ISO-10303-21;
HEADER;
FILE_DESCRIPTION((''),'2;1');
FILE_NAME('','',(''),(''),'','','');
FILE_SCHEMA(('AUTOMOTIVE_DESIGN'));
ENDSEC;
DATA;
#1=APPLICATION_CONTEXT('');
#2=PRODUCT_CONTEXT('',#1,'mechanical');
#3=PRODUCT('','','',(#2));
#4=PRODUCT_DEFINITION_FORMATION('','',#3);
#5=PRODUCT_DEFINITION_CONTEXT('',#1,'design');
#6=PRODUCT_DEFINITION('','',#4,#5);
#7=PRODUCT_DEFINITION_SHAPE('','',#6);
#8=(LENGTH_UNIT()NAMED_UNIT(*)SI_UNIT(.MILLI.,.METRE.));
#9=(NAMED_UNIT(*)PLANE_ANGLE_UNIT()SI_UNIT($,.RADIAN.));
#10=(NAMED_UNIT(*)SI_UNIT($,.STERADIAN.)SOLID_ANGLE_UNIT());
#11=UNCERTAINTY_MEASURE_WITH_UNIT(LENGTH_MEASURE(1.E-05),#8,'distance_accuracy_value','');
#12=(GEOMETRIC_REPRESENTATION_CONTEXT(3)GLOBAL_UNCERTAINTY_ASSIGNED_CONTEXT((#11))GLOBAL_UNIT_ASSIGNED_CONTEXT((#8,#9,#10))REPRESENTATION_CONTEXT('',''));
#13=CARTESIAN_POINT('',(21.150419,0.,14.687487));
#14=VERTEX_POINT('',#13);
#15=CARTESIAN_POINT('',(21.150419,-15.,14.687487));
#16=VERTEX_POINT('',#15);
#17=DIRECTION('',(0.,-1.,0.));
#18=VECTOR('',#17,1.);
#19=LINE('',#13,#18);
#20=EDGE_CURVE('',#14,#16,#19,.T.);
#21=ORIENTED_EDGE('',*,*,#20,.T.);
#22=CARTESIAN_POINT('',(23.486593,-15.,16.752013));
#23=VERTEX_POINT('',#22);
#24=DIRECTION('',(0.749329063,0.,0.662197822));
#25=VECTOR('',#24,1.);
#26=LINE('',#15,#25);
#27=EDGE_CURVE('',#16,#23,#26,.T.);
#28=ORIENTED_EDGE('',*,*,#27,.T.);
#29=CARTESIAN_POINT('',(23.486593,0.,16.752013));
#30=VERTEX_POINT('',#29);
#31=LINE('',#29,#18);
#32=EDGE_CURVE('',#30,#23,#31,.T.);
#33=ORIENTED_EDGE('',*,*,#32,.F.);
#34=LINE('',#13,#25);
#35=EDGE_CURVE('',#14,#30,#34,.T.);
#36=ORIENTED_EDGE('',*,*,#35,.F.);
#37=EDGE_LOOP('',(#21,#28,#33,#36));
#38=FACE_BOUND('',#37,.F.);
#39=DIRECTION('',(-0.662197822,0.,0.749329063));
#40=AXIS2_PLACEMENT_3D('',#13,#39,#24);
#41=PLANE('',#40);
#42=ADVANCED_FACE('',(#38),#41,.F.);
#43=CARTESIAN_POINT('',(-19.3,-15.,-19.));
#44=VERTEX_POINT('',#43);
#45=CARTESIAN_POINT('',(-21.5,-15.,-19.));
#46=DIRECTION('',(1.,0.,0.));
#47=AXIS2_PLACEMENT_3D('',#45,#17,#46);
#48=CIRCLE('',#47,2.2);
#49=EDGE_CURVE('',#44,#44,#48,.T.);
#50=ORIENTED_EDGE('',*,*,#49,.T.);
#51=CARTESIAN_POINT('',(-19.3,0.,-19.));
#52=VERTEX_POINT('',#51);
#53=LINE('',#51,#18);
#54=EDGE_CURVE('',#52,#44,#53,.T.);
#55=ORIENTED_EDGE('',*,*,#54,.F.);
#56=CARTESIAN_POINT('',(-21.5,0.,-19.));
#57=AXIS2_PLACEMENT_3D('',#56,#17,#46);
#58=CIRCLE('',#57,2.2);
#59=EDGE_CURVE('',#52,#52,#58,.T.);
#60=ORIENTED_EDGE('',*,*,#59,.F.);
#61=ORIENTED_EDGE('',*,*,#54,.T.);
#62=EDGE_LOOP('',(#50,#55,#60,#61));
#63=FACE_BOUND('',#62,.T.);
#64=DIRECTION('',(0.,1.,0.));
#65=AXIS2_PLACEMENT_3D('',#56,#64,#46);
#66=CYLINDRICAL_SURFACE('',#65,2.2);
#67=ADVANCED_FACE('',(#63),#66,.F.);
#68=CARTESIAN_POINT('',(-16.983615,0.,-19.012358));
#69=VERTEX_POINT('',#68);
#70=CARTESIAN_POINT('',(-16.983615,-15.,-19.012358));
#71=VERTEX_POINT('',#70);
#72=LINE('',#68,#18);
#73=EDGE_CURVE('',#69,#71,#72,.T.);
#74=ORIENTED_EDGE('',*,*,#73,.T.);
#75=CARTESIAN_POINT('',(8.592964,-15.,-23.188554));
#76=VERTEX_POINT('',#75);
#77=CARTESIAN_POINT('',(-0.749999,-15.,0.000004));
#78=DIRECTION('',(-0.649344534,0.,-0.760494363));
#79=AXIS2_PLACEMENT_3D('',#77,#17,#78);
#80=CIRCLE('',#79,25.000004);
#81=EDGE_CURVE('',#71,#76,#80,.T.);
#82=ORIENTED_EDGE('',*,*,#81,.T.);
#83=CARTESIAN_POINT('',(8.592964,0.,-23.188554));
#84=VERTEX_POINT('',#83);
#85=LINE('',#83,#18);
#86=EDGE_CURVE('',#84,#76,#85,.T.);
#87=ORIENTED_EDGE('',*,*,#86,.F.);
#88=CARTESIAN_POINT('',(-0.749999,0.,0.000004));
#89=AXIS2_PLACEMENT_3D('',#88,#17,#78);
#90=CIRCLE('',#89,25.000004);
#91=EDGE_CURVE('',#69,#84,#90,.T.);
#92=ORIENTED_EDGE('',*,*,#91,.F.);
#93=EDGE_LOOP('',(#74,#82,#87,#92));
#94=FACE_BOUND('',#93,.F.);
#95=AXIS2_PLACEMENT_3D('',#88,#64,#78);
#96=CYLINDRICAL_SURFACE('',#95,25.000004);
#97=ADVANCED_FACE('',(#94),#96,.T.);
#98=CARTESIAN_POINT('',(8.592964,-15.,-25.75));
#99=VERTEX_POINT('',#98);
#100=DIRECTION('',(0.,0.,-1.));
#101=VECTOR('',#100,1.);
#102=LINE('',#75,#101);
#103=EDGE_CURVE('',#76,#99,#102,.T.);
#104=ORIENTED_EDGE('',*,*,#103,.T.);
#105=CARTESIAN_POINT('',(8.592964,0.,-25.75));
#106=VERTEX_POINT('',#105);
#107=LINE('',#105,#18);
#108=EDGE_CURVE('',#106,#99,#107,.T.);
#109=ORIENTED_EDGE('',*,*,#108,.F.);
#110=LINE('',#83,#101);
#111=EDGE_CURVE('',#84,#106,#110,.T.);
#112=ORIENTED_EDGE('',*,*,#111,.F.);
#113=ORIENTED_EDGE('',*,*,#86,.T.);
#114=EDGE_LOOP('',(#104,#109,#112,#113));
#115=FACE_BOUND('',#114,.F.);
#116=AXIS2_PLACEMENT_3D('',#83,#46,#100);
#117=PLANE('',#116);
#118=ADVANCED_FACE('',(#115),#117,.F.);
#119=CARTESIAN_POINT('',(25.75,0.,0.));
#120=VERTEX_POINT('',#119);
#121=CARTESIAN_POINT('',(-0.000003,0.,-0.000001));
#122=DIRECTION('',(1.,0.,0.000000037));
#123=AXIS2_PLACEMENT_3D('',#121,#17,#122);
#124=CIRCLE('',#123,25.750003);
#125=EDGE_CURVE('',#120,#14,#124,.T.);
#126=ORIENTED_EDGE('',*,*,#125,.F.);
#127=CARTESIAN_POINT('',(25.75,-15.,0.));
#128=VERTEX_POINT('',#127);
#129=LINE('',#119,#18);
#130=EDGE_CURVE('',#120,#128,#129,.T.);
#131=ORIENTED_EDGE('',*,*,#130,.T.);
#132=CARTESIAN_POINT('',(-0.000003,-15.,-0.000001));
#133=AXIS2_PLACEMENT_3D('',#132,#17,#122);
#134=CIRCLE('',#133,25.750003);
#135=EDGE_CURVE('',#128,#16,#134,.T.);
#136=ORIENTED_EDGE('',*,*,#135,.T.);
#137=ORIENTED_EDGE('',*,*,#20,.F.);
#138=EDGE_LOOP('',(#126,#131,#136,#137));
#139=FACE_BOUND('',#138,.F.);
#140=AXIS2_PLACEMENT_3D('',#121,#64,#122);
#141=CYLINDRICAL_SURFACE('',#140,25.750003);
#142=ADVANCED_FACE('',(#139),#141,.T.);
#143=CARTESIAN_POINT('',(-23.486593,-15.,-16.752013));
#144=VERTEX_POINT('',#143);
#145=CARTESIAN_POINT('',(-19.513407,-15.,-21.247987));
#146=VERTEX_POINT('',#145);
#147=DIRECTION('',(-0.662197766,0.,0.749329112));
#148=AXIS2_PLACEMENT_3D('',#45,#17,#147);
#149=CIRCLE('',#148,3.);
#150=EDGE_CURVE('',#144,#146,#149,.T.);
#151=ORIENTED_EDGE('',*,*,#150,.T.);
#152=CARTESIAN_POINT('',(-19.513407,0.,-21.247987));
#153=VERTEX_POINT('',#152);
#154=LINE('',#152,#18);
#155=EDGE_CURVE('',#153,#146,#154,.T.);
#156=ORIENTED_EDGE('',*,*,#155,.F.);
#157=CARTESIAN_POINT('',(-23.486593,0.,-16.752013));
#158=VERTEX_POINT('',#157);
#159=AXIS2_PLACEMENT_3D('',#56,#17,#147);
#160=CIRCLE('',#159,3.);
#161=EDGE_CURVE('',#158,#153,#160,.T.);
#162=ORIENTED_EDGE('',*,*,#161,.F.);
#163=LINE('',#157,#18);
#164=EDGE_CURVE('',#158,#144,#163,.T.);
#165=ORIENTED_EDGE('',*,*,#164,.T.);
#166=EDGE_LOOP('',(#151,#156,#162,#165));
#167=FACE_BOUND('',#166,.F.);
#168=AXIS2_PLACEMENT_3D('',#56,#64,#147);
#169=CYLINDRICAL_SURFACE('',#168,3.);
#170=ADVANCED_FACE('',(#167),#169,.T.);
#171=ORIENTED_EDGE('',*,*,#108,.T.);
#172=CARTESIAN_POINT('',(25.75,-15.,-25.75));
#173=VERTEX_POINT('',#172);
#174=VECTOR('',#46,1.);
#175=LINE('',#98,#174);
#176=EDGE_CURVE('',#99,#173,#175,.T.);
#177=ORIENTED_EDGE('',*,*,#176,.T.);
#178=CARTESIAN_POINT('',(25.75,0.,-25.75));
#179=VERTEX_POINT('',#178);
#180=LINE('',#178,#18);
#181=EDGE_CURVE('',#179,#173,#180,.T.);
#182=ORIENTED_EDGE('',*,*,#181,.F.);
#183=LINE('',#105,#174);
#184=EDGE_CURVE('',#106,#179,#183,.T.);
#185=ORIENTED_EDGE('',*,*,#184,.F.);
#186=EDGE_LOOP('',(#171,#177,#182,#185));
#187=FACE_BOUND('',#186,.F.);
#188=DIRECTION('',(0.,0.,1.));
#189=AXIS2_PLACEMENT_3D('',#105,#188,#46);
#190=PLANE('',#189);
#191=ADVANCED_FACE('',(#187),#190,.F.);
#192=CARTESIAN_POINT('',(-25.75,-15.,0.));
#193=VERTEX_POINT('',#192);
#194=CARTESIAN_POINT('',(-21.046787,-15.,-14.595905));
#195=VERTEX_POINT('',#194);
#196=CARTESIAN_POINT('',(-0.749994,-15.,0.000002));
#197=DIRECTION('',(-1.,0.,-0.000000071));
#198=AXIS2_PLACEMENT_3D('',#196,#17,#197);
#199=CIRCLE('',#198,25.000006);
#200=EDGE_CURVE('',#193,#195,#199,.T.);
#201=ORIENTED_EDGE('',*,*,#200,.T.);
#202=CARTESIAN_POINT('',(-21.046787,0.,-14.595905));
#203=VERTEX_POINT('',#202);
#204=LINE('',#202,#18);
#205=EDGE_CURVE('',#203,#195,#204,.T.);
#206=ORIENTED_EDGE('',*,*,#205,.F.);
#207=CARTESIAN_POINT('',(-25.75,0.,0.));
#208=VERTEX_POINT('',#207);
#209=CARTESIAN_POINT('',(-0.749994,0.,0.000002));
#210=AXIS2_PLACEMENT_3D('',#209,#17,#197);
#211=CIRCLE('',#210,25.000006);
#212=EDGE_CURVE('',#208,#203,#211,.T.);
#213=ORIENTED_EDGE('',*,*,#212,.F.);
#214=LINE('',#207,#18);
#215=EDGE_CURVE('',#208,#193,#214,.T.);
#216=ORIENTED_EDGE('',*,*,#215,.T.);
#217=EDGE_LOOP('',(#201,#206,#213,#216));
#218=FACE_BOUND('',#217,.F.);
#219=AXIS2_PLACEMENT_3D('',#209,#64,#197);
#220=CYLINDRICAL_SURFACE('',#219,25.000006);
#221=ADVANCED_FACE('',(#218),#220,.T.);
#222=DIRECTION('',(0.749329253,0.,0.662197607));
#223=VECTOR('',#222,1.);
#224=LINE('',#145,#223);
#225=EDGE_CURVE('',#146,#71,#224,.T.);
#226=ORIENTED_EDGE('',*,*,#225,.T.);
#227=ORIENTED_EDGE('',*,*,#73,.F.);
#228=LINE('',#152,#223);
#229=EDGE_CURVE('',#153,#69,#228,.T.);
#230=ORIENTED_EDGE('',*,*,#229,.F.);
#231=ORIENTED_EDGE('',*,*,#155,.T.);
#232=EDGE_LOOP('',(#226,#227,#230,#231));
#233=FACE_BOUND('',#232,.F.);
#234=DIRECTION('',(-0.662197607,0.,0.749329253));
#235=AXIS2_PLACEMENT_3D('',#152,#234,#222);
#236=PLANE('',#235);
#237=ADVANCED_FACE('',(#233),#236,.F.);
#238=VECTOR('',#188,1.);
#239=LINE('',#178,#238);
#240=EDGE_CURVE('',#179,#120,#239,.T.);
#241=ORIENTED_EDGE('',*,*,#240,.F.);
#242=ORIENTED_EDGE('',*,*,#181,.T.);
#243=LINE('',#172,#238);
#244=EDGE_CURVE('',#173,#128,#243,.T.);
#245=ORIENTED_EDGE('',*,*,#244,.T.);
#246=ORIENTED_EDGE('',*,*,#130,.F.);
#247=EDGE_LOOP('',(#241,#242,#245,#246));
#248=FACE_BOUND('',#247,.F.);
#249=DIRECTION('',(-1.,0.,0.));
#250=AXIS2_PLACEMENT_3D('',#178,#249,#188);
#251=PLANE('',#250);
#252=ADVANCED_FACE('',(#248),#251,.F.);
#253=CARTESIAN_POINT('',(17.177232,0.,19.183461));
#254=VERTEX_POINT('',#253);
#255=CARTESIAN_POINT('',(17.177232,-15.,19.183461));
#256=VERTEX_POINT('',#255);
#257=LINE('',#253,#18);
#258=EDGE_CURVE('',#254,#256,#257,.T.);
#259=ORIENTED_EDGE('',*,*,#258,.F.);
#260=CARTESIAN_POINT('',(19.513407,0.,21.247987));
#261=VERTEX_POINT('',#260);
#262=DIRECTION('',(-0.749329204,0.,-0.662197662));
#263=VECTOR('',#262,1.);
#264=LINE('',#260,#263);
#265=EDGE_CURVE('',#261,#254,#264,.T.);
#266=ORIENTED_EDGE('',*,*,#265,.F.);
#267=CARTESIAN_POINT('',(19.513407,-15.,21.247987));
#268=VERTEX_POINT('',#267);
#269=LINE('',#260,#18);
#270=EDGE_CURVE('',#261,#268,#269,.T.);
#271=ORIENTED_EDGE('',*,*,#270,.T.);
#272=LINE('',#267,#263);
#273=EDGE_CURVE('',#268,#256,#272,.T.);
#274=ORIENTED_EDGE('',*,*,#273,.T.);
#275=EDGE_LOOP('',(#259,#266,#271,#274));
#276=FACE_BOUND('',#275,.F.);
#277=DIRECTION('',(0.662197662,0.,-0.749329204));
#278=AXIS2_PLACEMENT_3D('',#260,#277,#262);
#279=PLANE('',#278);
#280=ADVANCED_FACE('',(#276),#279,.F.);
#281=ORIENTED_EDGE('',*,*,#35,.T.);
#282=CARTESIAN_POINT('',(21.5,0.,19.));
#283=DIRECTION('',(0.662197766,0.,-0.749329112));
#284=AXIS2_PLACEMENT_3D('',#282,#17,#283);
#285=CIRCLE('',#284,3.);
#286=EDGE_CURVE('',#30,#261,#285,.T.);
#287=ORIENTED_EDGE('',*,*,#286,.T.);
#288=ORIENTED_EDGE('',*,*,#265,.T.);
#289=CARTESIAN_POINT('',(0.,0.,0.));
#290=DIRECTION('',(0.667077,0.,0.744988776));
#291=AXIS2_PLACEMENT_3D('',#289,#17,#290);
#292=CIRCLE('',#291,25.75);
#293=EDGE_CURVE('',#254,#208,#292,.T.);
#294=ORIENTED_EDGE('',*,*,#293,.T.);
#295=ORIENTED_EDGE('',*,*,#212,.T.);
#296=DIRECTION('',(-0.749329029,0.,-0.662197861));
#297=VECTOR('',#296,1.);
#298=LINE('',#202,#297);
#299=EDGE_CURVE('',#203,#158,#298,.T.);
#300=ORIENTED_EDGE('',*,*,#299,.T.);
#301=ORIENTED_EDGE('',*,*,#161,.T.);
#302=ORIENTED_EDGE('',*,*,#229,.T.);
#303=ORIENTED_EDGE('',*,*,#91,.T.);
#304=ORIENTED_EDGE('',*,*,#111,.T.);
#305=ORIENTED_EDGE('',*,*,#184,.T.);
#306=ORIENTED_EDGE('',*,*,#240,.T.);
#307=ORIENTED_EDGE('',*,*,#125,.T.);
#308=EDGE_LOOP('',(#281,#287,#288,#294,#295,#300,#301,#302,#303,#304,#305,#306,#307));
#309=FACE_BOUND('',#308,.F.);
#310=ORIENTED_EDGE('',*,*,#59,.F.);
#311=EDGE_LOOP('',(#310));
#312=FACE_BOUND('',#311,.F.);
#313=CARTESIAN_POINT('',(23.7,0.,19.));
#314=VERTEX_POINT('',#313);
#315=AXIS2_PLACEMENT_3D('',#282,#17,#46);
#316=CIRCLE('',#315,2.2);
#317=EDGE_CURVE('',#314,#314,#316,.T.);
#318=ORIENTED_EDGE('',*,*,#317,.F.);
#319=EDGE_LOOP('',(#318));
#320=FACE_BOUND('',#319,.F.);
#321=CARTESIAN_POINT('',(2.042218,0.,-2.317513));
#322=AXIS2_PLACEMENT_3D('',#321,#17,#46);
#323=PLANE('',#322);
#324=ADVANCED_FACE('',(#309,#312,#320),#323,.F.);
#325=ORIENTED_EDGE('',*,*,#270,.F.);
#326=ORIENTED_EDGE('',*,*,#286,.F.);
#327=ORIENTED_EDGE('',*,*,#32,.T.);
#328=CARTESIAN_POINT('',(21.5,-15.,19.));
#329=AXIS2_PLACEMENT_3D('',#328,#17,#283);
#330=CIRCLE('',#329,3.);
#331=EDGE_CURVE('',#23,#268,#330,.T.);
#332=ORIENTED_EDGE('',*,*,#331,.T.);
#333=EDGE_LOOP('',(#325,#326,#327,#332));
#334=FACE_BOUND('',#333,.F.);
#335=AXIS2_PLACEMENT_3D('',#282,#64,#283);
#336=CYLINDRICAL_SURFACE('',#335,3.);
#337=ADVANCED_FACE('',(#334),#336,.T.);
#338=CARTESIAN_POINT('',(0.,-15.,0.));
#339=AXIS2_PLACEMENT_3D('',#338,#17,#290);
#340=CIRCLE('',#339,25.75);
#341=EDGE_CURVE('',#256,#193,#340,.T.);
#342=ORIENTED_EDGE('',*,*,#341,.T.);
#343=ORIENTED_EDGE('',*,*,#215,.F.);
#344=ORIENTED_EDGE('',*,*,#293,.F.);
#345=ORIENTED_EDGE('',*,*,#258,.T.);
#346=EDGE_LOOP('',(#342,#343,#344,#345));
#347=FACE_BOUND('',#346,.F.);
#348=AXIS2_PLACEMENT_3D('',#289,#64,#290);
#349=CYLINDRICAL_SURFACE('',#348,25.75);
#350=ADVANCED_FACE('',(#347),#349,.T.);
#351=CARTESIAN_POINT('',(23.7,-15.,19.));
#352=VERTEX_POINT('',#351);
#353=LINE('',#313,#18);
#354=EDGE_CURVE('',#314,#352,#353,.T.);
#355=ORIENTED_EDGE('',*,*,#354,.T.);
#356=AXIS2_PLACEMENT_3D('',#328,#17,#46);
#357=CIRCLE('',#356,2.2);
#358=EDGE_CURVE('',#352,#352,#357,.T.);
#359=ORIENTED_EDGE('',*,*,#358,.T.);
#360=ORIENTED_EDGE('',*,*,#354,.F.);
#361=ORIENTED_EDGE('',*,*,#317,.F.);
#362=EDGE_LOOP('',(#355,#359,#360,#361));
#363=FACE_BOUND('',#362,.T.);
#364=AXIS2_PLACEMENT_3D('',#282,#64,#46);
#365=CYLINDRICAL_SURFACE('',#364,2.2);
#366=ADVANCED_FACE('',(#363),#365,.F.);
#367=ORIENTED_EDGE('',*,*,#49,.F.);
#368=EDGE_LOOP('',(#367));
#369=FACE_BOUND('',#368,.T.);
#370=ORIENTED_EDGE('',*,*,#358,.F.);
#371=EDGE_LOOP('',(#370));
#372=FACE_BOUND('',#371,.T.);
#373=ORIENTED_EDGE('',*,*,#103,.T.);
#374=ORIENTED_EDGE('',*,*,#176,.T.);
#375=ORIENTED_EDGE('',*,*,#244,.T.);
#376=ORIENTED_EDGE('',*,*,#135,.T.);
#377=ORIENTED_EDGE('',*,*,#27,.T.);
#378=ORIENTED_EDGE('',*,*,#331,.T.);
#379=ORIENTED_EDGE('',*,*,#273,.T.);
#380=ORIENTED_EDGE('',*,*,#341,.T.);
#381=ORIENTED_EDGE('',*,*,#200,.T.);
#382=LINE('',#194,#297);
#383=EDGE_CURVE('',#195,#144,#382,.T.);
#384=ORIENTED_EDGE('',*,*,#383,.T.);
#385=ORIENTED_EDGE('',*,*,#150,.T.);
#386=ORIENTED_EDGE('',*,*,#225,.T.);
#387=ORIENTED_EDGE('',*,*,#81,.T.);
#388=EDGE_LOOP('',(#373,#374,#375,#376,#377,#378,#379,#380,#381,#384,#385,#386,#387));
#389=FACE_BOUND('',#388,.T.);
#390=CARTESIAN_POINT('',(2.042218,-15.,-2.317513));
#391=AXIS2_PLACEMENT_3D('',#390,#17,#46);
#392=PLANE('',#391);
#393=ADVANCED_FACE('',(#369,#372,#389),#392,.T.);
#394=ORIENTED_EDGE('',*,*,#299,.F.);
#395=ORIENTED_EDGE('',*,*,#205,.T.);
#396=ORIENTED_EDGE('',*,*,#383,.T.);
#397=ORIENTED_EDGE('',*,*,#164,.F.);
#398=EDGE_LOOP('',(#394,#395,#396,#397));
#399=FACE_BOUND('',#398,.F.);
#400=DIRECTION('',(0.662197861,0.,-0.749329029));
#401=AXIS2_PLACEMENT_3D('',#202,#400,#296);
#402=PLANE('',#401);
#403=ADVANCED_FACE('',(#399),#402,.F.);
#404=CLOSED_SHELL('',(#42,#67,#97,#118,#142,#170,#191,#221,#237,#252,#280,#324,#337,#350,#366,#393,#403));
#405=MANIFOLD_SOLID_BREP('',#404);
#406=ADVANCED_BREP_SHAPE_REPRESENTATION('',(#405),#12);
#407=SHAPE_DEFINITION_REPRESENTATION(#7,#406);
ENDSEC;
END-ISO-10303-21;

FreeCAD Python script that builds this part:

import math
import FreeCAD as App
import Part
import Sketcher
from FreeCAD import Vector

doc = App.newDocument("Part")
params = doc.addObject("Spreadsheet::Sheet", "Params")
for row, (alias, value) in enumerate([
    ("sketch1_radius", "3 mm"),
    ("sketch1_diameter", "4.4 mm"),
    ("sketch1_radius2", "25.75 mm"),
    ("sketch1_height", "25.75 mm"),
    ("pad1_length", "15 mm"),
], start=1):
    params.set(f"A{row}", alias)
    params.set(f"B{row}", "=" + value)
    params.setAlias(f"B{row}", alias)

body = doc.addObject("PartDesign::Body", "Body")

# Sketch on XZ plane
sketch1 = doc.addObject("Sketcher::SketchObject", "Sketch")
body.addObject(sketch1)
sketch1.AttachmentSupport = (doc.XZ_Plane, [""])
sketch1.MapMode = "FlatFace"
sketch1.addGeometry([
    Part.LineSegment(Vector(8.6, -25.8, 0), Vector(25.8, -25.8, 0)),  # 0
    Part.LineSegment(Vector(25.8, -25.8, 0), Vector(25.8, 0, 0)),  # 1
    Part.ArcOfCircle(Part.Circle(Vector(0, 0, 0), Vector(0, 0, 1), 25.8), math.radians(0), math.radians(35)),  # 2
    Part.LineSegment(Vector(21.2, 14.7, 0), Vector(23.5, 16.8, 0)),  # 3
    Part.ArcOfCircle(Part.Circle(Vector(21.5, 19, 0), Vector(0, 0, 1), 3), math.radians(-49), math.radians(131)),  # 4
    Part.LineSegment(Vector(19.5, 21.2, 0), Vector(17.2, 19.2, 0)),  # 5
    Part.ArcOfCircle(Part.Circle(Vector(0, 0, 0), Vector(0, 0, 1), 25.7), math.radians(48), math.radians(180)),  # 6
    Part.ArcOfCircle(Part.Circle(Vector(-0.7, 0, 0), Vector(0, 0, 1), 25), math.radians(-180), math.radians(-144)),  # 7
    Part.LineSegment(Vector(-21, -14.6, 0), Vector(-23.5, -16.8, 0)),  # 8
    Part.ArcOfCircle(Part.Circle(Vector(-21.5, -19, 0), Vector(0, 0, 1), 3), math.radians(131), math.radians(311)),  # 9
    Part.LineSegment(Vector(-19.5, -21.2, 0), Vector(-17, -19, 0)),  # 10
    Part.ArcOfCircle(Part.Circle(Vector(-0.7, 0, 0), Vector(0, 0, 1), 25), math.radians(-130), math.radians(-68)),  # 11
    Part.LineSegment(Vector(8.6, -23.2, 0), Vector(8.6, -25.8, 0)),  # 12
    Part.Circle(Vector(-21.5, -19, 0), Vector(0, 0, 1), 2.2),  # 13
    Part.Circle(Vector(21.5, 19, 0), Vector(0, 0, 1), 2.2),  # 14
], False)
sketch1.addConstraint([
    Sketcher.Constraint("Coincident", 0, 2, 1, 1),
    Sketcher.Constraint("Tangent", 1, 2, 2, 1),
    Sketcher.Constraint("Coincident", 2, 2, 3, 1),
    Sketcher.Constraint("Tangent", 3, 2, 4, 1),
    Sketcher.Constraint("Tangent", 4, 2, 5, 1),
    Sketcher.Constraint("Coincident", 5, 2, 6, 1),
    Sketcher.Constraint("Tangent", 6, 2, 7, 1),
    Sketcher.Constraint("Coincident", 7, 2, 8, 1),
    Sketcher.Constraint("Tangent", 8, 2, 9, 1),
    Sketcher.Constraint("Tangent", 9, 2, 10, 1),
    Sketcher.Constraint("Coincident", 10, 2, 11, 1),
    Sketcher.Constraint("Coincident", 11, 2, 12, 1),
    Sketcher.Constraint("Coincident", 12, 2, 0, 1),
    Sketcher.Constraint("Horizontal", 0),
    Sketcher.Constraint("Vertical", 1),
    Sketcher.Constraint("Vertical", 12),
    Sketcher.Constraint("Coincident", 2, 3, -1, 1),
    Sketcher.Constraint("Coincident", 6, 3, -1, 1),
    Sketcher.Constraint("Coincident", 11, 3, 7, 3),
    Sketcher.Constraint("Coincident", 13, 3, 9, 3),
    Sketcher.Constraint("Coincident", 14, 3, 4, 3),
    Sketcher.Constraint("Equal", 4, 9),
    Sketcher.Constraint("Equal", 13, 14),
    Sketcher.Constraint("Symmetric", 4, 3, 9, 3, -1, 1),
    Sketcher.Constraint("Symmetric", 1, 2, 6, 2, -1, 1),
    Sketcher.Constraint("Parallel", 3, 5),
    Sketcher.Constraint("Parallel", 5, 8),
    Sketcher.Constraint("Parallel", 8, 10),
    Sketcher.Constraint("Equal", 3, 5),
    Sketcher.Constraint("Radius", 4, 3.0),
    Sketcher.Constraint("Diameter", 13, 4.4),
    Sketcher.Constraint("Radius", 6, 25.75),
    Sketcher.Constraint("DistanceY", -1, 1, 4, 3, 19.0),
    Sketcher.Constraint("DistanceX", 9, 3, 4, 3, 43.0),
    Sketcher.Constraint("DistanceX", 6, 2, 11, 3, 25.000001),
    Sketcher.Constraint("DistanceY", 1, 1, 1, 2, 25.75),
    Sketcher.Constraint("Radius", 11, 25.000004),
    Sketcher.Constraint("DistanceX", 0, 1, 0, 2, 17.157036),
])
sketch1.setExpression("Constraints[29]", "Params.sketch1_radius")
sketch1.setExpression("Constraints[30]", "Params.sketch1_diameter")
sketch1.setExpression("Constraints[31]", "Params.sketch1_radius2")
sketch1.setExpression("Constraints[35]", "Params.sketch1_height")
pad1 = doc.addObject("PartDesign::Pad", "Pad")
body.addObject(pad1)
pad1.Profile = sketch1
pad1.setExpression("Length", "Params.pad1_length")

doc.recompute()
